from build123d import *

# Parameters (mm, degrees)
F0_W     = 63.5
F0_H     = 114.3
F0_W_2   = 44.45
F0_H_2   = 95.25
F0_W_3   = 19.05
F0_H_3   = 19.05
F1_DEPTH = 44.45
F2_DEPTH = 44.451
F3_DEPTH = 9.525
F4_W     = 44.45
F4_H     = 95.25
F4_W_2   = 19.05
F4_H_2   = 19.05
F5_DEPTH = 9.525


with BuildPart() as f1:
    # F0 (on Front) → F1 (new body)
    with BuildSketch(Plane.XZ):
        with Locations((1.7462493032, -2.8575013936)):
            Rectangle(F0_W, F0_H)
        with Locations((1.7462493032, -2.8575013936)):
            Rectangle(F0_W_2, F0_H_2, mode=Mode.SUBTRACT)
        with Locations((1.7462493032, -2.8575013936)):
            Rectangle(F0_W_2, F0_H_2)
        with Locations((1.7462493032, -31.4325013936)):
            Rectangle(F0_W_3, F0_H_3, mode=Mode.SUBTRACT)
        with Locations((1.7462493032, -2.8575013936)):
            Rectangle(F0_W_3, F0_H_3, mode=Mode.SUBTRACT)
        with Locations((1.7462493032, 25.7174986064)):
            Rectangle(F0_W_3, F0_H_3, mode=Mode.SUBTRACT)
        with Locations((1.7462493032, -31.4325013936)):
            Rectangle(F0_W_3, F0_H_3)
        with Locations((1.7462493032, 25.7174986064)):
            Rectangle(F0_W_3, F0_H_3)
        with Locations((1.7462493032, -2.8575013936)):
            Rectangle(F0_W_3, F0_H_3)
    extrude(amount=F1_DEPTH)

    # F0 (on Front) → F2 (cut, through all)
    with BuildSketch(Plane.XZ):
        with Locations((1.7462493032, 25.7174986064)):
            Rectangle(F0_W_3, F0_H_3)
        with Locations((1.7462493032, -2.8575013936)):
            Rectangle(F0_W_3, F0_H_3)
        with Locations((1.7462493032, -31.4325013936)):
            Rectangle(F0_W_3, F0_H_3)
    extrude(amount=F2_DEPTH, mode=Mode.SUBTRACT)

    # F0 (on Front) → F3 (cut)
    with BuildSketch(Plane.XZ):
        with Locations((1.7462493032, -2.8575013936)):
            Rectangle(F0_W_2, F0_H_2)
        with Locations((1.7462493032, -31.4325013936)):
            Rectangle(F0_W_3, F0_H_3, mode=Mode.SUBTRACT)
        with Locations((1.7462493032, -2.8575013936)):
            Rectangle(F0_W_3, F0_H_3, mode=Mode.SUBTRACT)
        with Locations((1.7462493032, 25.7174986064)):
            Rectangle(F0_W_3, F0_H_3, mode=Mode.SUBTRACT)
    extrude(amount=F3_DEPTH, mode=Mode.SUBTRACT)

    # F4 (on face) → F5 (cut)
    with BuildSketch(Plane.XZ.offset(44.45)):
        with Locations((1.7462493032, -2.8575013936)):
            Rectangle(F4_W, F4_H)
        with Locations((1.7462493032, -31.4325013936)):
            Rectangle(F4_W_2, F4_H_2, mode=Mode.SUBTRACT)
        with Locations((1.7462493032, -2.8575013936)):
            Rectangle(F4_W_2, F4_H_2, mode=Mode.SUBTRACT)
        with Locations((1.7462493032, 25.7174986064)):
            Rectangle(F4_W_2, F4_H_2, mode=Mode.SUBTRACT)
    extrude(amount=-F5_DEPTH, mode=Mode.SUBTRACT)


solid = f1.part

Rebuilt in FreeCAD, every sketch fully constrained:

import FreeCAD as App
import Part
import Sketcher

V = App.Vector
Q = App.Units.Quantity


def add_polygon(sketch, points):
    """Adds a closed chain of lines whose ends are joined by coincident constraints."""
    first, n = sketch.GeometryCount, len(points)
    for a, b in zip(points, points[1:] + points[:1]):
        sketch.addGeometry(Part.LineSegment(App.Vector(*a, 0), App.Vector(*b, 0)), False)
    for i in range(n):
        sketch.addConstraint(Sketcher.Constraint("Coincident", first + i, 2, first + (i + 1) % n, 1))

doc = App.newDocument("Part")
params = doc.addObject("Spreadsheet::Sheet", "Params")
for row, (alias, value) in enumerate([
    ("sketch1_width", "2.5 in"),
    ("sketch1_height", "4.5 in"),
    ("pad1_length", "1.75 in"),
    ("sketch2_width", "0.75 in"),
    ("sketch3_width", "1.75 in"),
    ("sketch3_width2", "0.75 in"),
    ("sketch3_height", "3.75 in"),
    ("pocket2_length", "0.375 in"),
    ("sketch4_width", "1.75 in"),
    ("sketch4_width2", "0.75 in"),
    ("sketch4_height", "3.75 in"),
    ("pocket3_length", "0.375 in"),
], start=1):
    params.set(f"A{row}", alias)
    params.set(f"B{row}", "=" + value)
    params.setAlias(f"B{row}", alias)

body = doc.addObject("PartDesign::Body", "Body")

# Sketch on XZ plane
sketch1 = body.newObject("Sketcher::SketchObject", "Sketch")
sketch1.AttachmentSupport = (doc.getObject("XZ_Plane"), [""])
sketch1.MapMode = "FlatFace"
add_polygon(sketch1, [(-30, 54), (-30, -60), (33, -60), (33, 54)])  # lines 0-3
sketch1.addConstraint(Sketcher.Constraint("Vertical", 0))
sketch1.addConstraint(Sketcher.Constraint("Horizontal", 1))
sketch1.addConstraint(Sketcher.Constraint("Vertical", 2))
sketch1.addConstraint(Sketcher.Constraint("Horizontal", 3))
sketch1.addConstraint(Sketcher.Constraint("DistanceX", 1, 1, 1, 2, Q("2.5 in")))
sketch1.addConstraint(Sketcher.Constraint("DistanceY", 0, 2, 0, 1, Q("4.5 in")))
sketch1.addConstraint(Sketcher.Constraint("DistanceY", 0, 2, -1, 1, Q("2.3625001 in")))
sketch1.addConstraint(Sketcher.Constraint("DistanceX", 0, 2, -1, 1, 30.003751))
sketch1.setExpression("Constraints[8]", "Params.sketch1_width")
sketch1.setExpression("Constraints[9]", "Params.sketch1_height")
pad1 = body.newObject("PartDesign::Pad", "Pad")
pad1.Profile = sketch1
pad1.setExpression("Length", "Params.pad1_length")

# Sketch on XZ plane
sketch2 = body.newObject("Sketcher::SketchObject", "Sketch001")
sketch2.AttachmentSupport = (doc.getObject("XZ_Plane"), [""])
sketch2.MapMode = "FlatFace"
add_polygon(sketch2, [(-8, 35), (-8, 16), (11, 16), (11, 35)])  # lines 0-3
add_polygon(sketch2, [(-8, 7), (-8, -12), (11, -12), (11, 7)])  # lines 4-7
add_polygon(sketch2, [(-8, -22), (-8, -41), (11, -41), (11, -22)])  # lines 8-11
sketch2.addConstraint(Sketcher.Constraint("Vertical", 0))
sketch2.addConstraint(Sketcher.Constraint("Horizontal", 1))
sketch2.addConstraint(Sketcher.Constraint("Vertical", 2))
sketch2.addConstraint(Sketcher.Constraint("Horizontal", 3))
sketch2.addConstraint(Sketcher.Constraint("Vertical", 4))
sketch2.addConstraint(Sketcher.Constraint("Horizontal", 5))
sketch2.addConstraint(Sketcher.Constraint("Vertical", 6))
sketch2.addConstraint(Sketcher.Constraint("Horizontal", 7))
sketch2.addConstraint(Sketcher.Constraint("Vertical", 8))
sketch2.addConstraint(Sketcher.Constraint("Horizontal", 9))
sketch2.addConstraint(Sketcher.Constraint("Vertical", 10))
sketch2.addConstraint(Sketcher.Constraint("Horizontal", 11))
sketch2.addConstraint(Sketcher.Constraint("Vertical", 3, 2, 4, 2))
sketch2.addConstraint(Sketcher.Constraint("Vertical", 2, 2, 5, 2))
sketch2.addConstraint(Sketcher.Constraint("Vertical", 7, 2, 8, 2))
sketch2.addConstraint(Sketcher.Constraint("Vertical", 6, 2, 9, 2))
sketch2.addConstraint(Sketcher.Constraint("Equal", 11, 0))
sketch2.addConstraint(Sketcher.Constraint("Equal", 2, 4))
sketch2.addConstraint(Sketcher.Constraint("Equal", 6, 8))
sketch2.addConstraint(Sketcher.Constraint("DistanceX", 1, 1, 1, 2, Q("0.75 in")))
sketch2.addConstraint(Sketcher.Constraint("DistanceY", 8, 2, 0, 2, Q("2.25 in")))
sketch2.addConstraint(Sketcher.Constraint("DistanceY", 4, 2, 0, 2, Q("1.125 in")))
sketch2.addConstraint(Sketcher.Constraint("DistanceY", -1, 1, 0, 2, Q("0.6374999 in")))
sketch2.addConstraint(Sketcher.Constraint("DistanceX", 0, 2, -1, 1, 7.778751))
sketch2.setExpression("Constraints[31]", "Params.sketch2_width")
pocket1 = body.newObject("PartDesign::Pocket", "Pocket")
pocket1.Profile = sketch2
pocket1.Type = "ThroughAll"
pocket1.Reversed = True

# Sketch on XZ plane
sketch3 = body.newObject("Sketcher::SketchObject", "Sketch002")
sketch3.AttachmentSupport = (doc.getObject("XZ_Plane"), [""])
sketch3.MapMode = "FlatFace"
add_polygon(sketch3, [(-20, 45), (-20, -50), (24, -50), (24, 45)])  # lines 0-3
add_polygon(sketch3, [(11, -41), (-8, -41), (-8, -22), (11, -22)])  # lines 4-7
add_polygon(sketch3, [(11, -12), (-8, -12), (-8, 7), (11, 7)])  # lines 8-11
add_polygon(sketch3, [(11, 16), (-8, 16), (-8, 35), (11, 35)])  # lines 12-15
sketch3.addConstraint(Sketcher.Constraint("Vertical", 0))
sketch3.addConstraint(Sketcher.Constraint("Horizontal", 1))
sketch3.addConstraint(Sketcher.Constraint("Vertical", 2))
sketch3.addConstraint(Sketcher.Constraint("Horizontal", 3))
sketch3.addConstraint(Sketcher.Constraint("Horizontal", 4))
sketch3.addConstraint(Sketcher.Constraint("Vertical", 5))
sketch3.addConstraint(Sketcher.Constraint("Horizontal", 6))
sketch3.addConstraint(Sketcher.Constraint("Vertical", 7))
sketch3.addConstraint(Sketcher.Constraint("Horizontal", 8))
sketch3.addConstraint(Sketcher.Constraint("Vertical", 9))
sketch3.addConstraint(Sketcher.Constraint("Horizontal", 10))
sketch3.addConstraint(Sketcher.Constraint("Vertical", 11))
sketch3.addConstraint(Sketcher.Constraint("Horizontal", 12))
sketch3.addConstraint(Sketcher.Constraint("Vertical", 13))
sketch3.addConstraint(Sketcher.Constraint("Horizontal", 14))
sketch3.addConstraint(Sketcher.Constraint("Vertical", 15))
sketch3.addConstraint(Sketcher.Constraint("Vertical", 5, 2, 8, 2))
sketch3.addConstraint(Sketcher.Constraint("Vertical", 7, 2, 10, 2))
sketch3.addConstraint(Sketcher.Constraint("Vertical", 9, 2, 12, 2))
sketch3.addConstraint(Sketcher.Constraint("Vertical", 11, 2, 14, 2))
sketch3.addConstraint(Sketcher.Constraint("Equal", 14, 5))
sketch3.addConstraint(Sketcher.Constraint("Equal", 7, 9))
sketch3.addConstraint(Sketcher.Constraint("Equal", 11, 13))
sketch3.addConstraint(Sketcher.Constraint("DistanceX", 1, 1, 1, 2, Q("1.75 in")))
sketch3.addConstraint(Sketcher.Constraint("DistanceX", 4, 2, 4, 1, Q("0.75 in")))
sketch3.addConstraint(Sketcher.Constraint("DistanceY", 0, 2, 0, 1, Q("3.75 in")))
sketch3.addConstraint(Sketcher.Constraint("DistanceX", 0, 2, 4, 2, Q("0.5 in")))
sketch3.addConstraint(Sketcher.Constraint("DistanceY", 0, 2, 8, 2, Q("1.5 in")))
sketch3.addConstraint(Sketcher.Constraint("DistanceY", 0, 2, 4, 2, Q("0.375 in")))
sketch3.addConstraint(Sketcher.Constraint("DistanceY", 9, 2, 12, 2, Q("0.375 in")))
sketch3.addConstraint(Sketcher.Constraint("DistanceY", 0, 2, -1, 1, Q("1.9875001 in")))
sketch3.addConstraint(Sketcher.Constraint("DistanceX", 0, 2, -1, 1, 20.478751))
sketch3.setExpression("Constraints[39]", "Params.sketch3_width")
sketch3.setExpression("Constraints[40]", "Params.sketch3_width2")
sketch3.setExpression("Constraints[41]", "Params.sketch3_height")
pocket2 = body.newObject("PartDesign::Pocket", "Pocket001")
pocket2.Profile = sketch3
pocket2.setExpression("Length", "Params.pocket2_length")
pocket2.Reversed = True

# Sketch on XZ plane
sketch4 = body.newObject("Sketcher::SketchObject", "Sketch003")
sketch4.AttachmentSupport = (doc.getObject("XZ_Plane"), [""])
sketch4.MapMode = "FlatFace"
sketch4.AttachmentOffset = App.Placement(V(0, 0, 1.75 * 25.4), App.Rotation())
add_polygon(sketch4, [(-20, 45), (-20, -50), (24, -50), (24, 45)])  # lines 0-3
add_polygon(sketch4, [(11, -41), (-8, -41), (-8, -22), (11, -22)])  # lines 4-7
add_polygon(sketch4, [(11, -12), (-8, -12), (-8, 7), (11, 7)])  # lines 8-11
add_polygon(sketch4, [(11, 16), (-8, 16), (-8, 35), (11, 35)])  # lines 12-15
sketch4.addConstraint(Sketcher.Constraint("Vertical", 0))
sketch4.addConstraint(Sketcher.Constraint("Horizontal", 1))
sketch4.addConstraint(Sketcher.Constraint("Vertical", 2))
sketch4.addConstraint(Sketcher.Constraint("Horizontal", 3))
sketch4.addConstraint(Sketcher.Constraint("Horizontal", 4))
sketch4.addConstraint(Sketcher.Constraint("Vertical", 5))
sketch4.addConstraint(Sketcher.Constraint("Horizontal", 6))
sketch4.addConstraint(Sketcher.Constraint("Vertical", 7))
sketch4.addConstraint(Sketcher.Constraint("Horizontal", 8))
sketch4.addConstraint(Sketcher.Constraint("Vertical", 9))
sketch4.addConstraint(Sketcher.Constraint("Horizontal", 10))
sketch4.addConstraint(Sketcher.Constraint("Vertical", 11))
sketch4.addConstraint(Sketcher.Constraint("Horizontal", 12))
sketch4.addConstraint(Sketcher.Constraint("Vertical", 13))
sketch4.addConstraint(Sketcher.Constraint("Horizontal", 14))
sketch4.addConstraint(Sketcher.Constraint("Vertical", 15))
sketch4.addConstraint(Sketcher.Constraint("Vertical", 5, 2, 8, 2))
sketch4.addConstraint(Sketcher.Constraint("Vertical", 7, 2, 10, 2))
sketch4.addConstraint(Sketcher.Constraint("Vertical", 9, 2, 12, 2))
sketch4.addConstraint(Sketcher.Constraint("Vertical", 11, 2, 14, 2))
sketch4.addConstraint(Sketcher.Constraint("Equal", 14, 5))
sketch4.addConstraint(Sketcher.Constraint("Equal", 7, 9))
sketch4.addConstraint(Sketcher.Constraint("Equal", 11, 13))
sketch4.addConstraint(Sketcher.Constraint("DistanceX", 1, 1, 1, 2, Q("1.75 in")))
sketch4.addConstraint(Sketcher.Constraint("DistanceX", 4, 2, 4, 1, Q("0.75 in")))
sketch4.addConstraint(Sketcher.Constraint("DistanceY", 0, 2, 0, 1, Q("3.75 in")))
sketch4.addConstraint(Sketcher.Constraint("DistanceX", 0, 2, 4, 2, Q("0.5 in")))
sketch4.addConstraint(Sketcher.Constraint("DistanceY", 0, 2, 8, 2, Q("1.5 in")))
sketch4.addConstraint(Sketcher.Constraint("DistanceY", 0, 2, 4, 2, Q("0.375 in")))
sketch4.addConstraint(Sketcher.Constraint("DistanceY", 9, 2, 12, 2, Q("0.375 in")))
sketch4.addConstraint(Sketcher.Constraint("DistanceY", 0, 2, -1, 1, Q("1.9875001 in")))
sketch4.addConstraint(Sketcher.Constraint("DistanceX", 0, 2, -1, 1, 20.478751))
sketch4.setExpression("Constraints[39]", "Params.sketch4_width")
sketch4.setExpression("Constraints[40]", "Params.sketch4_width2")
sketch4.setExpression("Constraints[41]", "Params.sketch4_height")
pocket3 = body.newObject("PartDesign::Pocket", "Pocket002")
pocket3.Profile = sketch4
pocket3.setExpression("Length", "Params.pocket3_length")

doc.recompute()
